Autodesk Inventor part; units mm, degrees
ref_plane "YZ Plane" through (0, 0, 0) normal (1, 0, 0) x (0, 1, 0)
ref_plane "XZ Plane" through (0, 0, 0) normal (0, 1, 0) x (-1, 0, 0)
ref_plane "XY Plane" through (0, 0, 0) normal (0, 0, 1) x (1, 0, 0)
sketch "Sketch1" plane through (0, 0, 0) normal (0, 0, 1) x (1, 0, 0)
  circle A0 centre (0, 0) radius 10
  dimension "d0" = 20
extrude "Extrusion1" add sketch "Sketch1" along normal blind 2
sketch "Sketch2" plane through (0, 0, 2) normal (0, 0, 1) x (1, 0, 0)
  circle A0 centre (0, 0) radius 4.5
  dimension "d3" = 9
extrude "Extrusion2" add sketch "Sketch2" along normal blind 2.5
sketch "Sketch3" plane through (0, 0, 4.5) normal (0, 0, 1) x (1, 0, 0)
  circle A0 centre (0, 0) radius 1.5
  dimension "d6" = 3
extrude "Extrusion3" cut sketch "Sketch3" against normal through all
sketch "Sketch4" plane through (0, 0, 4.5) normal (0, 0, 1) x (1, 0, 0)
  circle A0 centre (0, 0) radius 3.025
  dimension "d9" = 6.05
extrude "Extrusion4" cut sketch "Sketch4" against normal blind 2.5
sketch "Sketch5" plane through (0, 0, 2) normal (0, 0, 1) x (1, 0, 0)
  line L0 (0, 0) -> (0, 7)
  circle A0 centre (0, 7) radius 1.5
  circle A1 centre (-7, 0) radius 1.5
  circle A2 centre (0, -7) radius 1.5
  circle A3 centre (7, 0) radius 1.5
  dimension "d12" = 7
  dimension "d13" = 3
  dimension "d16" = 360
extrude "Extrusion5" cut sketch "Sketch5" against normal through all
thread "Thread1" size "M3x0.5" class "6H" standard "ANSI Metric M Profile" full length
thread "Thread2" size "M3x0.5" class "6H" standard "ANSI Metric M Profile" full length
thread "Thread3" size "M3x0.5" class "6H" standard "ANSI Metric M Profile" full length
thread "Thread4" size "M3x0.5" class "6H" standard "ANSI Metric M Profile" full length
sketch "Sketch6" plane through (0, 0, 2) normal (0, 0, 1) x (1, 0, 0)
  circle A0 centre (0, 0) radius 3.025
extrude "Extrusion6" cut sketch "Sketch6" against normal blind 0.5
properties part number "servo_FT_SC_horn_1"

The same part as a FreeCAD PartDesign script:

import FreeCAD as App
import Part
import Sketcher
Q = App.Units.Quantity

doc = App.newDocument("Part")
params = doc.addObject("Spreadsheet::Sheet", "Params")
for row, (alias, value) in enumerate([
    ("sketch1_diameter", "20 mm"),
    ("pad1_length", "2 mm"),
    ("sketch2_diameter", "9 mm"),
    ("pad2_length", "2.5 mm"),
    ("sketch3_diameter", "3 mm"),
    ("sketch4_diameter", "6.05 mm"),
    ("pocket2_length", "2.5 mm"),
    ("sketch5_diameter", "3 mm"),
    ("sketch6_diameter", "6.05 mm"),
    ("pocket4_length", "0.5 mm"),
], start=1):
    params.set(f"A{row}", alias)
    params.set(f"B{row}", "=" + value)
    params.setAlias(f"B{row}", alias)

body = doc.addObject("PartDesign::Body", "Body")

# Sketch on XY plane
sketch1 = body.newObject("Sketcher::SketchObject", "Sketch")
sketch1.AttachmentSupport = (doc.getObject("XY_Plane"), [""])
sketch1.MapMode = "FlatFace"
sketch1.addGeometry(Part.Circle(App.Vector(0, 0, 0), App.Vector(0, 0, 1), 10), False)
sketch1.addConstraint([
    Sketcher.Constraint("Coincident", 0, 3, -1, 1),
    Sketcher.Constraint("Diameter", 0, Q("20 mm")),
])
sketch1.setExpression("Constraints[1]", "Params.sketch1_diameter")
pad1 = body.newObject("PartDesign::Pad", "Pad")
pad1.Profile = sketch1
pad1.setExpression("Length", "Params.pad1_length")

# Sketch on XY plane
sketch2 = body.newObject("Sketcher::SketchObject", "Sketch001")
sketch2.AttachmentSupport = (doc.getObject("XY_Plane"), [""])
sketch2.MapMode = "FlatFace"
sketch2.AttachmentOffset = App.Placement(App.Vector(0, 0, 2), App.Rotation())
sketch2.addGeometry(Part.Circle(App.Vector(0, 0, 0), App.Vector(0, 0, 1), 4.5), False)
sketch2.addConstraint([
    Sketcher.Constraint("Coincident", 0, 3, -1, 1),
    Sketcher.Constraint("Diameter", 0, Q("9 mm")),
])
sketch2.setExpression("Constraints[1]", "Params.sketch2_diameter")
pad2 = body.newObject("PartDesign::Pad", "Pad001")
pad2.Profile = sketch2
pad2.setExpression("Length", "Params.pad2_length")

# Sketch on XY plane
sketch3 = body.newObject("Sketcher::SketchObject", "Sketch002")
sketch3.AttachmentSupport = (doc.getObject("XY_Plane"), [""])
sketch3.MapMode = "FlatFace"
sketch3.AttachmentOffset = App.Placement(App.Vector(0, 0, 4.5), App.Rotation())
sketch3.addGeometry(Part.Circle(App.Vector(0, 0, 0), App.Vector(0, 0, 1), 1.5), False)
sketch3.addConstraint([
    Sketcher.Constraint("Coincident", 0, 3, -1, 1),
    Sketcher.Constraint("Diameter", 0, Q("3 mm")),
])
sketch3.setExpression("Constraints[1]", "Params.sketch3_diameter")
pocket1 = body.newObject("PartDesign::Pocket", "Pocket")
pocket1.Profile = sketch3
pocket1.Type = "ThroughAll"

# Sketch on XY plane
sketch4 = body.newObject("Sketcher::SketchObject", "Sketch003")
sketch4.AttachmentSupport = (doc.getObject("XY_Plane"), [""])
sketch4.MapMode = "FlatFace"
sketch4.AttachmentOffset = App.Placement(App.Vector(0, 0, 4.5), App.Rotation())
sketch4.addGeometry(Part.Circle(App.Vector(0, 0, 0), App.Vector(0, 0, 1), 3.025), False)
sketch4.addConstraint([
    Sketcher.Constraint("Coincident", 0, 3, -1, 1),
    Sketcher.Constraint("Diameter", 0, Q("6.05 mm")),
])
sketch4.setExpression("Constraints[1]", "Params.sketch4_diameter")
pocket2 = body.newObject("PartDesign::Pocket", "Pocket001")
pocket2.Profile = sketch4
pocket2.setExpression("Length", "Params.pocket2_length")

# Sketch on XY plane
sketch5 = body.newObject("Sketcher::SketchObject", "Sketch004")
sketch5.AttachmentSupport = (doc.getObject("XY_Plane"), [""])
sketch5.MapMode = "FlatFace"
sketch5.AttachmentOffset = App.Placement(App.Vector(0, 0, 2), App.Rotation())
sketch5.addGeometry([
    Part.Circle(App.Vector(0, 7, 0), App.Vector(0, 0, 1), 1.5),
    Part.Circle(App.Vector(-7, 0, 0), App.Vector(0, 0, 1), 1.5),
    Part.Circle(App.Vector(0, -7, 0), App.Vector(0, 0, 1), 1.5),
    Part.Circle(App.Vector(7, 0, 0), App.Vector(0, 0, 1), 1.5),
], False)
sketch5.addConstraint([
    Sketcher.Constraint("Equal", 0, 1),
    Sketcher.Constraint("Equal", 1, 2),
    Sketcher.Constraint("Equal", 2, 3),
    Sketcher.Constraint("Symmetric", 0, 3, 2, 3, -1, 1),
    Sketcher.Constraint("Symmetric", 1, 3, 3, 3, -1, 1),
    Sketcher.Constraint("PointOnObject", 0, 3, -2),
    Sketcher.Constraint("PointOnObject", 1, 3, -1),
    Sketcher.Constraint("Diameter", 0, Q("3 mm")),
    Sketcher.Constraint("DistanceY", -1, 1, 0, 3, Q("7 mm")),
    Sketcher.Constraint("DistanceX", 1, 3, -1, 1, Q("7 mm")),
])
sketch5.setExpression("Constraints[7]", "Params.sketch5_diameter")
pocket3 = body.newObject("PartDesign::Pocket", "Pocket002")
pocket3.Profile = sketch5
pocket3.Type = "ThroughAll"

# Sketch on XY plane
sketch6 = body.newObject("Sketcher::SketchObject", "Sketch005")
sketch6.AttachmentSupport = (doc.getObject("XY_Plane"), [""])
sketch6.MapMode = "FlatFace"
sketch6.AttachmentOffset = App.Placement(App.Vector(0, 0, 2), App.Rotation())
sketch6.addGeometry(Part.Circle(App.Vector(0, 0, 0), App.Vector(0, 0, 1), 3.025), False)
sketch6.addConstraint([
    Sketcher.Constraint("Coincident", 0, 3, -1, 1),
    Sketcher.Constraint("Diameter", 0, Q("6.05 mm")),
])
sketch6.setExpression("Constraints[1]", "Params.sketch6_diameter")
pocket4 = body.newObject("PartDesign::Pocket", "Pocket003")
pocket4.Profile = sketch6
pocket4.setExpression("Length", "Params.pocket4_length")

doc.recompute()
